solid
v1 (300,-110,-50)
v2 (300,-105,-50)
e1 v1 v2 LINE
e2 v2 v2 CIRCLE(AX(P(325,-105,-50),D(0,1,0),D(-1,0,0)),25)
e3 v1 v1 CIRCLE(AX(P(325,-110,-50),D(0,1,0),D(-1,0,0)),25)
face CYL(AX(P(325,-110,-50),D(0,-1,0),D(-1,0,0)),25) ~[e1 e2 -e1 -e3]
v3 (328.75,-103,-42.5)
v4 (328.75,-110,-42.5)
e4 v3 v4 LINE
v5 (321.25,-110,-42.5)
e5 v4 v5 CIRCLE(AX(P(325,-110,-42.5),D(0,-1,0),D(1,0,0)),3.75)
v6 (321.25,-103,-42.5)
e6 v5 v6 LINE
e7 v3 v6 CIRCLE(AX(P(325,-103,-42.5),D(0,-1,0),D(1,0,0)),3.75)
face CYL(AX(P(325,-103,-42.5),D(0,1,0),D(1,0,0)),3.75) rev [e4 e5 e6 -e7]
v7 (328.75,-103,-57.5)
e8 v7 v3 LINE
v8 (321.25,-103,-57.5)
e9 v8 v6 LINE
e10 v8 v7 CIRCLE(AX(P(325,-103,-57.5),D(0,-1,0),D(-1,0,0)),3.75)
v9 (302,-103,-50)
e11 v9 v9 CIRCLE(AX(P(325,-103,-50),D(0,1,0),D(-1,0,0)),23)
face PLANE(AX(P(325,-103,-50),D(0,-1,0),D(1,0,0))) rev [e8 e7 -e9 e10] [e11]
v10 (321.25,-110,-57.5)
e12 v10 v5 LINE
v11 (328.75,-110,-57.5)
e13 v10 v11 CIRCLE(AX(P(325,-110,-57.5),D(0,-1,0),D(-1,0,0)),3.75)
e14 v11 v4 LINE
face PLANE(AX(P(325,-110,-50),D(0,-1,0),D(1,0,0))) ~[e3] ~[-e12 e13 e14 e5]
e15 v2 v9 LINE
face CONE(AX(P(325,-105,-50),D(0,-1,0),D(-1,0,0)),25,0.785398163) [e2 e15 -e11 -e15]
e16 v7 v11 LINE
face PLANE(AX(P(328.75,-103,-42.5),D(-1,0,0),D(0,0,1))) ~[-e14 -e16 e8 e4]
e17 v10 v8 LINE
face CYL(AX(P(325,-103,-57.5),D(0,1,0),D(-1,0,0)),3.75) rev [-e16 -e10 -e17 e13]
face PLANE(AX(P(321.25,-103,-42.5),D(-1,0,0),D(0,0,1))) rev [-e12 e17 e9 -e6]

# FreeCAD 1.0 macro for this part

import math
import FreeCAD as App
import Part
import Sketcher

V = App.Vector
Q = App.Units.Quantity


def edges_at(feature, points):
    """Names of the edges that pass closest to the given points."""
    edges = feature.Shape.Edges
    near = lambda p: min(range(len(edges)), key=lambda i: edges[i].distToShape(Part.Vertex(*p))[0])
    return sorted({f"Edge{near(p) + 1}" for p in points})

doc = App.newDocument("Part")
body = doc.addObject("PartDesign::Body", "Body")

sketch1 = body.newObject("Sketcher::SketchObject", "Sketch")
sketch1.AttachmentSupport = (doc.getObject("XZ_Plane"), [""])
sketch1.MapMode = "FlatFace"
sketch1.AttachmentOffset = App.Placement(V(0, 0, -7), App.Rotation())
sketch1.addGeometry([
    Part.ArcOfCircle(Part.Circle(V(0, 7.5, 0), V(0, 0, 1), 3.8), math.radians(0), math.radians(180)),
    Part.LineSegment(V(3.8, 7.5, 0), V(3.8, -7.5, 0)),
    Part.ArcOfCircle(Part.Circle(V(0, -7.5, 0), V(0, 0, 1), 3.8), math.radians(180), math.radians(360)),
    Part.LineSegment(V(-3.8, -7.5, 0), V(-3.8, 7.5, 0)),
], False)
sketch1.addConstraint([
    Sketcher.Constraint("Tangent", 0, 1, 1, 1),
    Sketcher.Constraint("Tangent", 1, 2, 2, 2),
    Sketcher.Constraint("Tangent", 2, 1, 3, 1),
    Sketcher.Constraint("Tangent", 3, 2, 0, 2),
    Sketcher.Constraint("Vertical", 1),
    Sketcher.Constraint("Vertical", 3),
    Sketcher.Constraint("Symmetric", 0, 3, 2, 3, -1, 1),
    Sketcher.Constraint("DistanceY", 1, 2, 1, 1, Q("15 mm")),
    Sketcher.Constraint("Radius", 0, Q("3.75 mm")),
])
pad1 = body.newObject("PartDesign::Pad", "Pad")
pad1.Profile = sketch1
pad1.Length = 20
pad1.Midplane = True
body2 = doc.addObject("PartDesign::Body", "Body001")

sketch2 = body2.newObject("Sketcher::SketchObject", "Sketch001")
sketch2.AttachmentSupport = (doc.getObject("XZ_Plane001"), [""])
sketch2.MapMode = "FlatFace"
sketch2.addGeometry(Part.Circle(V(0, 0, 0), V(0, 0, 1), 25), False)
sketch2.addConstraint([
    Sketcher.Constraint("Coincident", 0, 3, -1, 1),
    Sketcher.Constraint("Diameter", 0, Q("50 mm")),
])
pad2 = body2.newObject("PartDesign::Pad", "Pad001")
pad2.Profile = sketch2
pad2.Length = 7
pad2.Reversed = True
doc.recompute()

chamfer = body2.newObject("PartDesign::Chamfer", "Chamfer")
chamfer.Base = (pad2, edges_at(pad2, [(-25, 7, 0)]))
chamfer.Size = 2
doc.recompute()

boolean = body2.newObject("PartDesign::Boolean", "Boolean")
boolean.Type = "Cut"
boolean.addObjects([body])
body3 = doc.addObject("PartDesign::Body", "Body002")
doc.recompute()

body2.Placement = App.Placement(V(0, 0, -83.343755), App.Rotation(V(0, 0, 1), 0))
boolean2 = body3.newObject("PartDesign::Boolean", "Boolean001")
boolean2.Type = "Fuse"
boolean2.addObjects([body2])
body4 = doc.addObject("PartDesign::Body", "Body003")
doc.recompute()

body3.Placement = App.Placement(V(-325, -110, 33.343755), App.Rotation(V(0, 0, 1), 0))
boolean3 = body4.newObject("PartDesign::Boolean", "Boolean002")
boolean3.Type = "Fuse"
boolean3.addObjects([body3])
body5 = doc.addObject("PartDesign::Body", "Body004")
doc.recompute()

mirroring = doc.addObject("Part::Mirroring", "Mirroring")
mirroring.Source = body4
mirroring.Base = V(0, 0, 0)
mirroring.Normal = V(1, 0, 0)
body5.BaseFeature = mirroring
doc.recompute()
body4.Visibility = False
mirroring.Visibility = False

doc.recompute()
